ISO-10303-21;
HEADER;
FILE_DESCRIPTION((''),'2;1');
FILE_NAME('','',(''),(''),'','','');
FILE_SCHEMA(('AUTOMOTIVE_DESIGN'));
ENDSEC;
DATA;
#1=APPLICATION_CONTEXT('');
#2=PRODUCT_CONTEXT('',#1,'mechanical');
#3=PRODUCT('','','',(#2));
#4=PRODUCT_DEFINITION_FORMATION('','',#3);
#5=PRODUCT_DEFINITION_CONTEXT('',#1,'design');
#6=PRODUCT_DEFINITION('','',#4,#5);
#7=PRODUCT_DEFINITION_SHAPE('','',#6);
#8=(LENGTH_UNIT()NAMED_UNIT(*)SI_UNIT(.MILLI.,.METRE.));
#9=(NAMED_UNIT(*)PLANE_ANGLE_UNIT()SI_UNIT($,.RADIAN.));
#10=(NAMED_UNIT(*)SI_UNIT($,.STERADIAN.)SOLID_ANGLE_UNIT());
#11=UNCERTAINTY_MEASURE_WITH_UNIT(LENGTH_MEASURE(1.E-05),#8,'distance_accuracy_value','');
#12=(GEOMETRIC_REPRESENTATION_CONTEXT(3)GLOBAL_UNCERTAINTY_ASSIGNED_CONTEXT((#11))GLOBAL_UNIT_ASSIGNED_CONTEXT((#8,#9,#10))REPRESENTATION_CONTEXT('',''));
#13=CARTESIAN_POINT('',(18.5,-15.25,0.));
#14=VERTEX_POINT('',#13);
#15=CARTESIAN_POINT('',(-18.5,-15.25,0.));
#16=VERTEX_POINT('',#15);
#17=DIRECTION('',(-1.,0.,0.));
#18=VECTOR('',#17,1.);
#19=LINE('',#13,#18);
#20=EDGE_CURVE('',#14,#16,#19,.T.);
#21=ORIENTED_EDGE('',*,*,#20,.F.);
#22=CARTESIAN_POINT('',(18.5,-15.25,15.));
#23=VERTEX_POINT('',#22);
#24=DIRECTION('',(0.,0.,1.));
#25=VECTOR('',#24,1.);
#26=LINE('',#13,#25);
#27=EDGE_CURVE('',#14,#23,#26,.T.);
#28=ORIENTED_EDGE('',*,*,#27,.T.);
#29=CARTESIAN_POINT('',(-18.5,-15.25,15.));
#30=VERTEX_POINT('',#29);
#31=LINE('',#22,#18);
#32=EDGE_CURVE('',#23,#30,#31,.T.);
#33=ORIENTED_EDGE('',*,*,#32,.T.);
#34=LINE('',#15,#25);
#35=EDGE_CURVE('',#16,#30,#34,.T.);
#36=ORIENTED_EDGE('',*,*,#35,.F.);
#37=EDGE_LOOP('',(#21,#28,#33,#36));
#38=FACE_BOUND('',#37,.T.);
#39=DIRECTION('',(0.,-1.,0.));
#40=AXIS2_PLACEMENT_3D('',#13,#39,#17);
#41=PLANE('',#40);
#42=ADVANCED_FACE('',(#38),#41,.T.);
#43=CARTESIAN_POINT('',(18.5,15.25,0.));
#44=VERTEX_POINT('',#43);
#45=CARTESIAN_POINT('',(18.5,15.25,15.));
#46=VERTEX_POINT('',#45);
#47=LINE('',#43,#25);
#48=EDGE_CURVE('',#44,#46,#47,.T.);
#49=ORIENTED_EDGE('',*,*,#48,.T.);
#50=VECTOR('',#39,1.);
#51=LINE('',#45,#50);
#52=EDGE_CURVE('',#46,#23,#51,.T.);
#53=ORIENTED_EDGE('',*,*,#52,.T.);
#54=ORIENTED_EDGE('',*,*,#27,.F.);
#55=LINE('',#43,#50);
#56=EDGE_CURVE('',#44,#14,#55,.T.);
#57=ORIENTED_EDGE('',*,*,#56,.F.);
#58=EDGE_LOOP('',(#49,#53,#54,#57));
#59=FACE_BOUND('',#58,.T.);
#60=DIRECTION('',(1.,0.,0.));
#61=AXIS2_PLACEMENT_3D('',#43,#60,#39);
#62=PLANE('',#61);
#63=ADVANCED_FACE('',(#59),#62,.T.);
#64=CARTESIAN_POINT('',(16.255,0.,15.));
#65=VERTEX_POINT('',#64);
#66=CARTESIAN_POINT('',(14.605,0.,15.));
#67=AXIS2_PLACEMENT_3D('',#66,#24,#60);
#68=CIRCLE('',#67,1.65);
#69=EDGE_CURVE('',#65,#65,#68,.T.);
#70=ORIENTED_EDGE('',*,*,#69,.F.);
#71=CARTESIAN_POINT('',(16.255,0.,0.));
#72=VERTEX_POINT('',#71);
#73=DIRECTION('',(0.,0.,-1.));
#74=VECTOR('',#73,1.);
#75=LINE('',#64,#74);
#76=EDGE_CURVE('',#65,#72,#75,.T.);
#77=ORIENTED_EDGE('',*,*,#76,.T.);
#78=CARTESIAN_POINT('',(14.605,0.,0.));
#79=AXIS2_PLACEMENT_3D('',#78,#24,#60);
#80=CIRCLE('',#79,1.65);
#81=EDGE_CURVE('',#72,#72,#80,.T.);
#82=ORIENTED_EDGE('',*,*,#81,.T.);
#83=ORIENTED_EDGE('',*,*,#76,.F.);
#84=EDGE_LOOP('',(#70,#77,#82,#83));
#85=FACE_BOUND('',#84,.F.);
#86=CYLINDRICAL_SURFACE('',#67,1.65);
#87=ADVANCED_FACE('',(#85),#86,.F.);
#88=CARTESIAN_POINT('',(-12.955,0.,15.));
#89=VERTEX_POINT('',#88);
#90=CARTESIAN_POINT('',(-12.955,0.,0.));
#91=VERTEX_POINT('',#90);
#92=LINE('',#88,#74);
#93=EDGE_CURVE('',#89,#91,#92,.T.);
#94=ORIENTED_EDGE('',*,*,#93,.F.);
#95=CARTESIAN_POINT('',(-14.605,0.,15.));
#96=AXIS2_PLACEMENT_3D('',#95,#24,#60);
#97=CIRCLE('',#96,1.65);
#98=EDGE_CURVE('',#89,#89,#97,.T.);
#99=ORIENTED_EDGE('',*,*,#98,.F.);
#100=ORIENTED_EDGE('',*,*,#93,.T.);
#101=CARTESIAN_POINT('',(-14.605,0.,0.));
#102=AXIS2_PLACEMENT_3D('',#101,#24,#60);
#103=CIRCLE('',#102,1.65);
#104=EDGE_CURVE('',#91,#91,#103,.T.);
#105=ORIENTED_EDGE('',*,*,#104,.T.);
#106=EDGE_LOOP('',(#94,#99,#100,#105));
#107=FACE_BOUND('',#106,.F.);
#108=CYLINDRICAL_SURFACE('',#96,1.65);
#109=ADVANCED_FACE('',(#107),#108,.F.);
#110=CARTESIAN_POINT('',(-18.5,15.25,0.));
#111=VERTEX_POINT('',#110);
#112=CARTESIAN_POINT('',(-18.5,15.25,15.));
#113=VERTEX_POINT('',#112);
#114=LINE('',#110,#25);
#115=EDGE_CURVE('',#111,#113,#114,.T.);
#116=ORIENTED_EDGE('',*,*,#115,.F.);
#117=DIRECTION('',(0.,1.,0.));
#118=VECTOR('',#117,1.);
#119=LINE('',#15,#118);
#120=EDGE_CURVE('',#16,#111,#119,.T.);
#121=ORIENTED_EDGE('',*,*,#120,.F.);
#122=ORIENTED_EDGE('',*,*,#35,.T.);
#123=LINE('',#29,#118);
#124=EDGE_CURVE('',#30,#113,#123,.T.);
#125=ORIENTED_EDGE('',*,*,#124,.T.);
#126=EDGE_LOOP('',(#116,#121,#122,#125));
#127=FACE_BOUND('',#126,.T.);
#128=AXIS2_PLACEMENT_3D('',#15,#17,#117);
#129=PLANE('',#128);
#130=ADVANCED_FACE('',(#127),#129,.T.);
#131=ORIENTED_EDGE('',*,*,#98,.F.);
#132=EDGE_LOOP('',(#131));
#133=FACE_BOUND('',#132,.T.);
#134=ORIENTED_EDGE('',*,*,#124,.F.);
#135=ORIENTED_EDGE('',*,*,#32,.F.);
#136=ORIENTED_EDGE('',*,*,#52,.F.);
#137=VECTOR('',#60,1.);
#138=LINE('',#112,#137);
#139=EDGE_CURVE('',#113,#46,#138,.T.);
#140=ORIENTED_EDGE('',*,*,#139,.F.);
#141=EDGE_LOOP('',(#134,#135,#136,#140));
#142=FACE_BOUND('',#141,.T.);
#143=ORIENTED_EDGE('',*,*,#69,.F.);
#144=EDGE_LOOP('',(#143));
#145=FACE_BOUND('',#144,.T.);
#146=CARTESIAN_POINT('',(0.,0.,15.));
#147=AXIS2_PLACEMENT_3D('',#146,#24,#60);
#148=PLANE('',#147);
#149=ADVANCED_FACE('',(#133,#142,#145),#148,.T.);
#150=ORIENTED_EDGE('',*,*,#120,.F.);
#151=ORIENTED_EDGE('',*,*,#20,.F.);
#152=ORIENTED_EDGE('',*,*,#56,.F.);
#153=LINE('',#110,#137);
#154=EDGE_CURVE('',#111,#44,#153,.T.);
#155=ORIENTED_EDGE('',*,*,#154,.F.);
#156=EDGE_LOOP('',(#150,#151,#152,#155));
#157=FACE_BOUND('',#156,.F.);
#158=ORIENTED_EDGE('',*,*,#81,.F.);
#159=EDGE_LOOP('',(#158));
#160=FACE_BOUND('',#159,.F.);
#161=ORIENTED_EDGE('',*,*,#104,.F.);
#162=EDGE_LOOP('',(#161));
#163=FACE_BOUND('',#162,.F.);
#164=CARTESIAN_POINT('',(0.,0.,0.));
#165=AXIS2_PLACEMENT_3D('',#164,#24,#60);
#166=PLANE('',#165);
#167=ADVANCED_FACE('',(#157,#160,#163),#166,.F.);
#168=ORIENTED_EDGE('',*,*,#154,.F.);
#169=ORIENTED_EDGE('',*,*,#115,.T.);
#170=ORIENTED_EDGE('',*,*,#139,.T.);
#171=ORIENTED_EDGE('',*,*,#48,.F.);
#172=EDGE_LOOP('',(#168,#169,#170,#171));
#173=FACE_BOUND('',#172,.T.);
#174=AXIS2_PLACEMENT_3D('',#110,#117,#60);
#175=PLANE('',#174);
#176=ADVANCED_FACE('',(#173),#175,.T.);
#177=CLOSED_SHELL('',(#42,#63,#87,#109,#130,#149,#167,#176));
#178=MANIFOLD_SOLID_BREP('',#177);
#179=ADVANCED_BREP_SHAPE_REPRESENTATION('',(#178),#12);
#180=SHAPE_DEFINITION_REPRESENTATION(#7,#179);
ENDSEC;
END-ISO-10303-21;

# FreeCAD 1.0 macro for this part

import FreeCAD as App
import Part
import Sketcher

doc = App.newDocument("Part")
body = doc.addObject("PartDesign::Body", "Body")

# Sketch on XY plane
sketch1 = doc.addObject("Sketcher::SketchObject", "Sketch")
body.addObject(sketch1)
sketch1.AttachmentSupport = (doc.XY_Plane, [""])
sketch1.MapMode = "FlatFace"
sketch1.addGeometry([
    Part.LineSegment(App.Vector(18, 15, 0), App.Vector(-18, 15, 0)),
    Part.LineSegment(App.Vector(-18, 15, 0), App.Vector(-18, -15, 0)),
    Part.LineSegment(App.Vector(-18, -15, 0), App.Vector(18, -15, 0)),
    Part.LineSegment(App.Vector(18, -15, 0), App.Vector(18, 15, 0)),
], False)
sketch1.addConstraint([
    Sketcher.Constraint("Coincident", 0, 2, 1, 1),
    Sketcher.Constraint("Coincident", 1, 2, 2, 1),
    Sketcher.Constraint("Coincident", 2, 2, 3, 1),
    Sketcher.Constraint("Coincident", 3, 2, 0, 1),
    Sketcher.Constraint("Horizontal", 0),
    Sketcher.Constraint("Vertical", 1),
    Sketcher.Constraint("Horizontal", 2),
    Sketcher.Constraint("Vertical", 3),
    Sketcher.Constraint("Symmetric", 0, 2, 2, 2, -1, 1),
    Sketcher.Constraint("DistanceX", 0, 2, 0, 1, 37.0),
    Sketcher.Constraint("DistanceY", 1, 2, 1, 1, 30.5),
])
pad1 = doc.addObject("PartDesign::Pad", "Pad")
body.addObject(pad1)
pad1.Profile = sketch1
pad1.Length = 15

# Sketch on XY plane
sketch2 = doc.addObject("Sketcher::SketchObject", "Sketch001")
body.addObject(sketch2)
sketch2.AttachmentSupport = (doc.XY_Plane, [""])
sketch2.MapMode = "FlatFace"
sketch2.AttachmentOffset = App.Placement(App.Vector(0, 0, 15), App.Rotation())
sketch2.addGeometry([
    Part.Circle(App.Vector(14.6, 0, 0), App.Vector(0, 0, 1), 1.6),
    Part.Circle(App.Vector(-14.6, 0, 0), App.Vector(0, 0, 1), 1.6),
], False)
sketch2.addConstraint([
    Sketcher.Constraint("Equal", 0, 1),
    Sketcher.Constraint("Symmetric", 0, 3, 1, 3, -1, 1),
    Sketcher.Constraint("PointOnObject", 0, 3, -1),
    Sketcher.Constraint("Diameter", 0, 3.3),
    Sketcher.Constraint("DistanceX", 1, 3, 0, 3, 29.21),
])
pocket1 = doc.addObject("PartDesign::Pocket", "Pocket")
body.addObject(pocket1)
pocket1.Profile = sketch2
pocket1.Type = "UpToFirst"

doc.recompute()
